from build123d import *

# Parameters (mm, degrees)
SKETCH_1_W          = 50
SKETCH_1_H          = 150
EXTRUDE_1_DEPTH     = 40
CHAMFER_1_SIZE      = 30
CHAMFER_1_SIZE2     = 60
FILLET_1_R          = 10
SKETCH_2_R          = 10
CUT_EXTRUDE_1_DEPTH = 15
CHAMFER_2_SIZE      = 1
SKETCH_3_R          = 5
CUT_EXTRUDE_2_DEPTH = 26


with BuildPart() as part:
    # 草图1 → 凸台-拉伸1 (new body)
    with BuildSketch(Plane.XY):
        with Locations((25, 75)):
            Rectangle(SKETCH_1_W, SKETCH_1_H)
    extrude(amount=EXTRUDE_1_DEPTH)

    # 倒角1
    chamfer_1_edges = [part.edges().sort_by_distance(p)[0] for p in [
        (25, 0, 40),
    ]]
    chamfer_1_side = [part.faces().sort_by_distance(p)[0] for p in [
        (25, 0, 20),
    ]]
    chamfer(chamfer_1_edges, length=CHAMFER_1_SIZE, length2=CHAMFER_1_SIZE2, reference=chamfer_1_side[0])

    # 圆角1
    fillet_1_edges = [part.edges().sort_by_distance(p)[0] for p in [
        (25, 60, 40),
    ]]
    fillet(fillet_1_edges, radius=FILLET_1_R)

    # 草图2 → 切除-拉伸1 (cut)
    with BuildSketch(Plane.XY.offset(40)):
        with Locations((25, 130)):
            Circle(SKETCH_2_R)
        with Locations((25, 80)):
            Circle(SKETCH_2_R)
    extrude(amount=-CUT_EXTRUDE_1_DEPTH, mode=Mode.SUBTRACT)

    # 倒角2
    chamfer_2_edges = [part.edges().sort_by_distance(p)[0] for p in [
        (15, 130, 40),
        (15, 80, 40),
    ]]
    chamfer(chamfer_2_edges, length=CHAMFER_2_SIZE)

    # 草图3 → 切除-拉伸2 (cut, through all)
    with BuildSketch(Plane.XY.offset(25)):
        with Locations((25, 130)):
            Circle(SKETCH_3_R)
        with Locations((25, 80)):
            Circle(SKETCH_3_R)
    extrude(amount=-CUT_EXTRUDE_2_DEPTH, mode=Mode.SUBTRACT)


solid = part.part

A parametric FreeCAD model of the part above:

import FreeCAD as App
import Part
import Sketcher
from FreeCAD import Vector
Q = App.Units.Quantity


def edges_at(feature, points):
    """Names of the edges that pass closest to the given points."""
    edges = feature.Shape.Edges
    near = lambda p: min(range(len(edges)), key=lambda i: edges[i].distToShape(Part.Vertex(*p))[0])
    return sorted({f"Edge{near(p) + 1}" for p in points})

doc = App.newDocument("Part")
params = doc.addObject("Spreadsheet::Sheet", "Params")
for row, (alias, value) in enumerate([
    ("sketch1_width", "50 mm"),
    ("sketch1_height", "150 mm"),
    ("pad1_length", "40 mm"),
    ("chamfer_size", "30 mm"),
    ("chamfer_size2", "60 mm"),
    ("fillet_radius", "10 mm"),
    ("sketch2_diameter", "20 mm"),
    ("pocket1_length", "15 mm"),
    ("chamfer2_size", "1 mm"),
    ("sketch3_diameter", "10 mm"),
], start=1):
    params.set(f"A{row}", alias)
    params.set(f"B{row}", "=" + value)
    params.setAlias(f"B{row}", alias)

body = doc.addObject("PartDesign::Body", "Body")

# Sketch on XY plane
sketch1 = doc.addObject("Sketcher::SketchObject", "Sketch")
body.addObject(sketch1)
sketch1.AttachmentSupport = (doc.XY_Plane, [""])
sketch1.MapMode = "FlatFace"
sketch1.addGeometry(Part.LineSegment(Vector(0, 150, 0), Vector(0, 0, 0)), False)
sketch1.addGeometry(Part.LineSegment(Vector(0, 0, 0), Vector(50, 0, 0)), False)
sketch1.addGeometry(Part.LineSegment(Vector(50, 0, 0), Vector(50, 150, 0)), False)
sketch1.addGeometry(Part.LineSegment(Vector(50, 150, 0), Vector(0, 150, 0)), False)
sketch1.addConstraint(Sketcher.Constraint("Coincident", 0, 2, 1, 1))
sketch1.addConstraint(Sketcher.Constraint("Coincident", 1, 2, 2, 1))
sketch1.addConstraint(Sketcher.Constraint("Coincident", 2, 2, 3, 1))
sketch1.addConstraint(Sketcher.Constraint("Coincident", 3, 2, 0, 1))
sketch1.addConstraint(Sketcher.Constraint("Vertical", 0))
sketch1.addConstraint(Sketcher.Constraint("Horizontal", 1))
sketch1.addConstraint(Sketcher.Constraint("Vertical", 2))
sketch1.addConstraint(Sketcher.Constraint("Horizontal", 3))
sketch1.addConstraint(Sketcher.Constraint("Coincident", 0, 2, -1, 1))
sketch1.addConstraint(Sketcher.Constraint("DistanceX", 1, 1, 1, 2, Q("50 mm")))
sketch1.addConstraint(Sketcher.Constraint("DistanceY", 0, 2, 0, 1, Q("150 mm")))
sketch1.setExpression("Constraints[9]", "Params.sketch1_width")
sketch1.setExpression("Constraints[10]", "Params.sketch1_height")
pad1 = doc.addObject("PartDesign::Pad", "Pad")
body.addObject(pad1)
pad1.Profile = sketch1
pad1.setExpression("Length", "Params.pad1_length")
doc.recompute()

chamfer = doc.addObject("PartDesign::Chamfer", "Chamfer")
body.addObject(chamfer)
chamfer.Base = (pad1, edges_at(pad1, [(25, 0, 40)]))
chamfer.ChamferType = "Two distances"
chamfer.setExpression("Size", "Params.chamfer_size")
chamfer.setExpression("Size2", "Params.chamfer_size2")
doc.recompute()

fillet = doc.addObject("PartDesign::Fillet", "Fillet")
body.addObject(fillet)
fillet.Base = (chamfer, edges_at(chamfer, [(25, 60, 40)]))
fillet.setExpression("Radius", "Params.fillet_radius")

# Sketch on XY plane
sketch2 = doc.addObject("Sketcher::SketchObject", "Sketch001")
body.addObject(sketch2)
sketch2.AttachmentSupport = (doc.XY_Plane, [""])
sketch2.MapMode = "FlatFace"
sketch2.AttachmentOffset = App.Placement(Vector(0, 0, 40), App.Rotation())
sketch2.addGeometry(Part.Circle(Vector(25, 130, 0), Vector(0, 0, 1), 10), False)
sketch2.addGeometry(Part.Circle(Vector(25, 80, 0), Vector(0, 0, 1), 10), False)
sketch2.addConstraint(Sketcher.Constraint("Equal", 0, 1))
sketch2.addConstraint(Sketcher.Constraint("Vertical", 0, 3, 1, 3))
sketch2.addConstraint(Sketcher.Constraint("Diameter", 0, Q("20 mm")))
sketch2.addConstraint(Sketcher.Constraint("DistanceX", -1, 1, 0, 3, Q("25 mm")))
sketch2.addConstraint(Sketcher.Constraint("DistanceY", -1, 1, 0, 3, Q("130 mm")))
sketch2.addConstraint(Sketcher.Constraint("DistanceY", -1, 1, 1, 3, Q("80 mm")))
sketch2.setExpression("Constraints[2]", "Params.sketch2_diameter")
pocket1 = doc.addObject("PartDesign::Pocket", "Pocket")
body.addObject(pocket1)
pocket1.Profile = sketch2
pocket1.setExpression("Length", "Params.pocket1_length")
doc.recompute()

chamfer2 = doc.addObject("PartDesign::Chamfer", "Chamfer001")
body.addObject(chamfer2)
chamfer2.Base = (pocket1, edges_at(pocket1, [(15, 130, 40), (15, 80, 40)]))
chamfer2.setExpression("Size", "Params.chamfer2_size")

# Sketch on XY plane
sketch3 = doc.addObject("Sketcher::SketchObject", "Sketch002")
body.addObject(sketch3)
sketch3.AttachmentSupport = (doc.XY_Plane, [""])
sketch3.MapMode = "FlatFace"
sketch3.AttachmentOffset = App.Placement(Vector(0, 0, 25), App.Rotation())
sketch3.addGeometry(Part.Circle(Vector(25, 130, 0), Vector(0, 0, 1), 5), False)
sketch3.addGeometry(Part.Circle(Vector(25, 80, 0), Vector(0, 0, 1), 5), False)
sketch3.addConstraint(Sketcher.Constraint("Equal", 0, 1))
sketch3.addConstraint(Sketcher.Constraint("Vertical", 0, 3, 1, 3))
sketch3.addConstraint(Sketcher.Constraint("Diameter", 0, Q("10 mm")))
sketch3.addConstraint(Sketcher.Constraint("DistanceX", -1, 1, 0, 3, Q("25 mm")))
sketch3.addConstraint(Sketcher.Constraint("DistanceY", -1, 1, 0, 3, Q("130 mm")))
sketch3.addConstraint(Sketcher.Constraint("DistanceY", -1, 1, 1, 3, Q("80 mm")))
sketch3.setExpression("Constraints[2]", "Params.sketch3_diameter")
pocket2 = doc.addObject("PartDesign::Pocket", "Pocket001")
body.addObject(pocket2)
pocket2.Profile = sketch3
pocket2.Type = "ThroughAll"

doc.recompute()
